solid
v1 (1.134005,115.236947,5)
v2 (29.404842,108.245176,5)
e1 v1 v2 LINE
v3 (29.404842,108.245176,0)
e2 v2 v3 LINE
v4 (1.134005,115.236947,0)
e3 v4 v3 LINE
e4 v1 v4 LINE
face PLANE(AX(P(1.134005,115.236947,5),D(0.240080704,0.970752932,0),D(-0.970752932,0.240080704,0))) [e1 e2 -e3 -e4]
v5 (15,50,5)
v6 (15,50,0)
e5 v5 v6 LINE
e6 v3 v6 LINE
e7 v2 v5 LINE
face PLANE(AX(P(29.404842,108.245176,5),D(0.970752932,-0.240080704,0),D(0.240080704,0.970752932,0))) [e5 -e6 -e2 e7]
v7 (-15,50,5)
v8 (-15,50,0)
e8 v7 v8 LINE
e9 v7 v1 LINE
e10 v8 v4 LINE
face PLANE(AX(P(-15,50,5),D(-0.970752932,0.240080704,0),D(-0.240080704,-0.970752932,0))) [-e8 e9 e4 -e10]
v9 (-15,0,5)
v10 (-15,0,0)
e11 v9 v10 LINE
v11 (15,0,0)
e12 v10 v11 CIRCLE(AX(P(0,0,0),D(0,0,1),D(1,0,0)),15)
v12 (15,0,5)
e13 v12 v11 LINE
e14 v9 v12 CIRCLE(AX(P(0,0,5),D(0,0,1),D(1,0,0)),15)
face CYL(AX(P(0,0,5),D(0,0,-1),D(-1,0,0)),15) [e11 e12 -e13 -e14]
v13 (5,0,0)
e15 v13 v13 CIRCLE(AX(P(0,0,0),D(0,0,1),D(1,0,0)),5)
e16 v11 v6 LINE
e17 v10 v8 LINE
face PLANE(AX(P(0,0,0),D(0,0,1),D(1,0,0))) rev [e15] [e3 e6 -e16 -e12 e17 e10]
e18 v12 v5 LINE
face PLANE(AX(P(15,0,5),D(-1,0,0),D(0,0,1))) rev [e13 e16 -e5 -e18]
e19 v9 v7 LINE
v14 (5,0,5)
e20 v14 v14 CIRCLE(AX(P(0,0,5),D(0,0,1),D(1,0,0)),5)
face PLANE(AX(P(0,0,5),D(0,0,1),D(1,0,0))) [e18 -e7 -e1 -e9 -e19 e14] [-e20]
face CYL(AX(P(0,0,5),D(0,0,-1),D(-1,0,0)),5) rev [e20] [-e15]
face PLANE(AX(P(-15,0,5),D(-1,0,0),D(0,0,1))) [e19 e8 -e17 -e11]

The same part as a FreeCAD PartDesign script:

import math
import FreeCAD as App
import Part
import Sketcher

doc = App.newDocument("Part")
body = doc.addObject("PartDesign::Body", "Body")

# Sketch on XY plane
sketch1 = body.newObject("Sketcher::SketchObject", "Sketch")
sketch1.AttachmentSupport = (doc.getObject("XY_Plane"), [""])
sketch1.MapMode = "FlatFace"
sketch1.addGeometry([
    Part.LineSegment(App.Vector(1, 115, 0), App.Vector(-15, 50, 0)),  # 0
    Part.LineSegment(App.Vector(-15, 50, 0), App.Vector(-15, 0, 0)),  # 1
    Part.ArcOfCircle(Part.Circle(App.Vector(0, 0, 0), App.Vector(0, 0, 1), 15), math.radians(180), math.radians(360)),  # 2
    Part.LineSegment(App.Vector(15, 0, 0), App.Vector(15, 50, 0)),  # 3
    Part.LineSegment(App.Vector(15, 50, 0), App.Vector(29, 108, 0)),  # 4
    Part.LineSegment(App.Vector(29, 108, 0), App.Vector(1, 115, 0)),  # 5
    Part.Circle(App.Vector(0, 0, 0), App.Vector(0, 0, 1), 5),  # 6
], False)
sketch1.addConstraint([
    Sketcher.Constraint("Coincident", 0, 2, 1, 1),
    Sketcher.Constraint("Tangent", 1, 2, 2, 1),
    Sketcher.Constraint("Tangent", 2, 2, 3, 1),
    Sketcher.Constraint("Coincident", 3, 2, 4, 1),
    Sketcher.Constraint("Coincident", 4, 2, 5, 1),
    Sketcher.Constraint("Coincident", 5, 2, 0, 1),
    Sketcher.Constraint("Vertical", 1),
    Sketcher.Constraint("Vertical", 3),
    Sketcher.Constraint("Coincident", 2, 3, -1, 1),
    Sketcher.Constraint("Coincident", 6, 3, -1, 1),
    Sketcher.Constraint("Parallel", 0, 4),
    Sketcher.Constraint("Perpendicular", 4, 5),
    Sketcher.Constraint("Horizontal", 0, 2, 3, 2),
    Sketcher.Constraint("Diameter", 6, 10.0),
    Sketcher.Constraint("Radius", 2, 15.0),
    Sketcher.Constraint("DistanceY", 1, 2, 1, 1, 50.0),
    Sketcher.Constraint("Distance", 4, 60.0),
    Sketcher.Constraint("Distance", 0, 67.202421),
])
pad1 = body.newObject("PartDesign::Pad", "Pad")
pad1.Profile = sketch1
pad1.Length = 5

doc.recompute()
